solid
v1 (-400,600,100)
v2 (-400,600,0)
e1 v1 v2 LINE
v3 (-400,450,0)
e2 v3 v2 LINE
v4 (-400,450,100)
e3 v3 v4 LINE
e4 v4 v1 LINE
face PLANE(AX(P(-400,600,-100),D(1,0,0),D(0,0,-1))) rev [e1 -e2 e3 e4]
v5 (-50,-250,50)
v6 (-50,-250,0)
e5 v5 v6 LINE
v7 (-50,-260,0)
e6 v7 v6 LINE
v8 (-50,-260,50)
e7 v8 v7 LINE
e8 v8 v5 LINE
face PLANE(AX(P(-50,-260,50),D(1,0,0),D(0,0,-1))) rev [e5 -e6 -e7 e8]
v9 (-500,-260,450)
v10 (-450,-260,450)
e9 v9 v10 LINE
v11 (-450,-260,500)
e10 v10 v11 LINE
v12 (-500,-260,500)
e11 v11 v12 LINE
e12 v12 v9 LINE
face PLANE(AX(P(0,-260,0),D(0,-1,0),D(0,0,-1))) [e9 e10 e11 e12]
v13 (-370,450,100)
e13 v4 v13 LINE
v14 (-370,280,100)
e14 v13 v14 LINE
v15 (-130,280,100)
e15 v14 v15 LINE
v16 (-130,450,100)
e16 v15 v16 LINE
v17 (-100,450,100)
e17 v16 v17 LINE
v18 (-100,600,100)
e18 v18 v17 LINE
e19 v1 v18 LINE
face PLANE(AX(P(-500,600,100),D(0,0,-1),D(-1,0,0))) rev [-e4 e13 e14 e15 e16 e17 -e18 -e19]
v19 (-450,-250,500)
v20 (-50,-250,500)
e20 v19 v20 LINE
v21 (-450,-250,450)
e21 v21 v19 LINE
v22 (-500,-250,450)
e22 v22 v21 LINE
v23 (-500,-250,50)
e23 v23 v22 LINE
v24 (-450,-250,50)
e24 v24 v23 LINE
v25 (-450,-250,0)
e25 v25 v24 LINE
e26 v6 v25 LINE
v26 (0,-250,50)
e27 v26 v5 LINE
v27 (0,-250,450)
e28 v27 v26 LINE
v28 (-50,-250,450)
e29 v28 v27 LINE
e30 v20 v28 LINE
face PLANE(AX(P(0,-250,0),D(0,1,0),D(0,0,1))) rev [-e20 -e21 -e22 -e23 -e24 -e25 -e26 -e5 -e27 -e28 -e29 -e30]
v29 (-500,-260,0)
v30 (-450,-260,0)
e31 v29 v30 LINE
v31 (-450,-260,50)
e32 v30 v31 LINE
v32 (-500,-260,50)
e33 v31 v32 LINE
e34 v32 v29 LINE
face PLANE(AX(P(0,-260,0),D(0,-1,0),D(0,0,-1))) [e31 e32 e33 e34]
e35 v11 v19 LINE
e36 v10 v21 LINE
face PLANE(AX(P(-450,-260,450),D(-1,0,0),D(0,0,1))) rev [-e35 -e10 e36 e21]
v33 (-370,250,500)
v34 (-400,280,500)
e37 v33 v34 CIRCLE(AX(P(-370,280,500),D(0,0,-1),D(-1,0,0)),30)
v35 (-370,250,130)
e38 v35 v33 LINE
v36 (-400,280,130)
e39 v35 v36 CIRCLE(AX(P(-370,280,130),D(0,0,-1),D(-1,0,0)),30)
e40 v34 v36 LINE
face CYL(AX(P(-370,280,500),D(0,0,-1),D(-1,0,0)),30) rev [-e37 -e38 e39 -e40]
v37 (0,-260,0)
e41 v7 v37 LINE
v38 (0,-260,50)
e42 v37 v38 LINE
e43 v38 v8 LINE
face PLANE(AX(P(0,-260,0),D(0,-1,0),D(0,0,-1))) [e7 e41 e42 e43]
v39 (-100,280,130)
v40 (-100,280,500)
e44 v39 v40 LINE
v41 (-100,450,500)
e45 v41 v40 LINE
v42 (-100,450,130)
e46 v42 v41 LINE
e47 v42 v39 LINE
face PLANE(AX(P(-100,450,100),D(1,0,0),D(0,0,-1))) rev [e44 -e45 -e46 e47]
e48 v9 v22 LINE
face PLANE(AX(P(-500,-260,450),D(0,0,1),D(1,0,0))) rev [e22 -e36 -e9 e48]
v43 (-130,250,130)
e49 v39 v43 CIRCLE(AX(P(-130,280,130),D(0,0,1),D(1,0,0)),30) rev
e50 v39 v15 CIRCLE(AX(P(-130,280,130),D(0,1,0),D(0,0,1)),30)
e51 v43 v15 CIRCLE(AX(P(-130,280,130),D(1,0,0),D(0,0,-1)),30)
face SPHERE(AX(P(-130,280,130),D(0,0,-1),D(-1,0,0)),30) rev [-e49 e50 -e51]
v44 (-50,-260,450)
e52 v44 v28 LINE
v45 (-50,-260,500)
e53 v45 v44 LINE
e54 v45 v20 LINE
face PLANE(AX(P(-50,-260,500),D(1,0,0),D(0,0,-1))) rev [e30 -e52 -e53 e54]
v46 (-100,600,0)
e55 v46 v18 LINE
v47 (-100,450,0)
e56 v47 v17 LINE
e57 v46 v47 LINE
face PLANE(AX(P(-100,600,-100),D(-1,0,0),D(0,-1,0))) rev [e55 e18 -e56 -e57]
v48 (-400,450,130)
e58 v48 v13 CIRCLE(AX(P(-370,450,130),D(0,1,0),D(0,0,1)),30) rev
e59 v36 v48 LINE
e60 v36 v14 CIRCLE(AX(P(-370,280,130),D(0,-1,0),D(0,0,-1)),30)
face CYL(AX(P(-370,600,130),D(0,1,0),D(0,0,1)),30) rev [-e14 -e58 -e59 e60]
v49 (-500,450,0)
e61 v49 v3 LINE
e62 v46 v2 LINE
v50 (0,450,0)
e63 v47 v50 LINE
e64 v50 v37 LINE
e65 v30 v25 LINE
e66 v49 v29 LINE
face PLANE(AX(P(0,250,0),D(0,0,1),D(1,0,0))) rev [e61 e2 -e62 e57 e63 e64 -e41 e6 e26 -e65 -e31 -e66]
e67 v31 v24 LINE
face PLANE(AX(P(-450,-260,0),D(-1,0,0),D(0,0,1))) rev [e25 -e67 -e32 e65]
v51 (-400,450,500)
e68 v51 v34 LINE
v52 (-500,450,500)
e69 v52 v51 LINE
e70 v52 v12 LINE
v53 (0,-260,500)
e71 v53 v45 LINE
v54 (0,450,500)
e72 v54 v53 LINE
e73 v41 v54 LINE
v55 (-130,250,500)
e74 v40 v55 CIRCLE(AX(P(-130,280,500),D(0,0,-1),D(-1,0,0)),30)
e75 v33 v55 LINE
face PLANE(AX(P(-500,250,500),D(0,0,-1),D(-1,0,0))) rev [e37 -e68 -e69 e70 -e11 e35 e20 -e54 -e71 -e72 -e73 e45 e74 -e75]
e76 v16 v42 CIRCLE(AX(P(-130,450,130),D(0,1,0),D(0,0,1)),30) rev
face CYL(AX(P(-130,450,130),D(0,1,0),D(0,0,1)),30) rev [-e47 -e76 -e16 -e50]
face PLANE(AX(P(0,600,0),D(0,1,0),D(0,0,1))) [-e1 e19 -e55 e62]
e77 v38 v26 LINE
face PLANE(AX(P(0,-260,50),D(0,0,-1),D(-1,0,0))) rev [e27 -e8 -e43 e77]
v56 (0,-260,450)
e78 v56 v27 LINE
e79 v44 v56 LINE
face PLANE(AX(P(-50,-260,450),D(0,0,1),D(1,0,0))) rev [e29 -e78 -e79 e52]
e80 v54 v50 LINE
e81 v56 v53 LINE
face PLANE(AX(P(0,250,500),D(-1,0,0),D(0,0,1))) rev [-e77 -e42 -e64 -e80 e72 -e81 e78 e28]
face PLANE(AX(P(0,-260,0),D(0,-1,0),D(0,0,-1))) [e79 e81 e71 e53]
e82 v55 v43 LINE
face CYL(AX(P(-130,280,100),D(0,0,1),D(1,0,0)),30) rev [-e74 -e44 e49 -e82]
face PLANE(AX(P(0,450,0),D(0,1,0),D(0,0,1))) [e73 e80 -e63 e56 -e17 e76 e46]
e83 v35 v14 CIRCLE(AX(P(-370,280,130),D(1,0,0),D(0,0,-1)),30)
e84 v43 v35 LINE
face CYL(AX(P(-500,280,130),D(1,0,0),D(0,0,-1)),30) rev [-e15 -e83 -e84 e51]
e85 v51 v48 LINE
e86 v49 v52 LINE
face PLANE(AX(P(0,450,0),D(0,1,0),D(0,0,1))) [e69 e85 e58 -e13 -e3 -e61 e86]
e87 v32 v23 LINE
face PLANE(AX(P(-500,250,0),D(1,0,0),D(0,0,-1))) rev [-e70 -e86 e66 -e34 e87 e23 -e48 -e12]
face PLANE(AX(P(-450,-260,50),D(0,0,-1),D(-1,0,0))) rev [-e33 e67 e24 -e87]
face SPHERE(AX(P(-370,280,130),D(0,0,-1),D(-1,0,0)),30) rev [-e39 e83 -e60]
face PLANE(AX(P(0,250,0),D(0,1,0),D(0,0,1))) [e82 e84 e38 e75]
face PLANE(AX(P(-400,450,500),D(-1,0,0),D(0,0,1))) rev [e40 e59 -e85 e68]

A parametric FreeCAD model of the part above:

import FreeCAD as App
import Part
import Sketcher

V = App.Vector
Q = App.Units.Quantity


def edges_at(feature, points):
    """Names of the edges that pass closest to the given points."""
    edges = feature.Shape.Edges
    near = lambda p: min(range(len(edges)), key=lambda i: edges[i].distToShape(Part.Vertex(*p))[0])
    return sorted({f"Edge{near(p) + 1}" for p in points})


def add_polygon(sketch, points):
    """Adds a closed chain of lines whose ends are joined by coincident constraints."""
    first, n = sketch.GeometryCount, len(points)
    for a, b in zip(points, points[1:] + points[:1]):
        sketch.addGeometry(Part.LineSegment(App.Vector(*a, 0), App.Vector(*b, 0)), False)
    for i in range(n):
        sketch.addConstraint(Sketcher.Constraint("Coincident", first + i, 2, first + (i + 1) % n, 1))

doc = App.newDocument("Part")
body = doc.addObject("PartDesign::Body", "Body")

sketch1 = body.newObject("Sketcher::SketchObject", "Sketch")
sketch1.AttachmentSupport = (doc.getObject("XZ_Plane"), [""])
sketch1.MapMode = "FlatFace"
add_polygon(sketch1, [(-500, 0), (-500, 500), (0, 500), (0, 0)])
sketch1.addConstraint([
    Sketcher.Constraint("Vertical", 0),
    Sketcher.Constraint("Horizontal", 1),
    Sketcher.Constraint("Vertical", 2),
    Sketcher.Constraint("Horizontal", 3),
    Sketcher.Constraint("Coincident", 2, 2, -1, 1),
    Sketcher.Constraint("Equal", 3, 0),
    Sketcher.Constraint("DistanceX", 1, 1, 1, 2, Q("500 mm")),
])
pad1 = body.newObject("PartDesign::Pad", "Pad")
pad1.Profile = sketch1
pad1.Length = 500
pad1.Midplane = True

sketch2 = body.newObject("Sketcher::SketchObject", "Sketch001")
sketch2.AttachmentSupport = (doc.getObject("XZ_Plane"), [""])
sketch2.MapMode = "FlatFace"
sketch2.AttachmentOffset = App.Placement(V(0, 0, -250), App.Rotation())
add_polygon(sketch2, [(-500, 0), (-500, 100), (0, 100), (0, 0)])
sketch2.addConstraint([
    Sketcher.Constraint("Vertical", 0),
    Sketcher.Constraint("Horizontal", 1),
    Sketcher.Constraint("Vertical", 2),
    Sketcher.Constraint("Horizontal", 3),
    Sketcher.Constraint("Coincident", 2, 2, -1, 1),
    Sketcher.Constraint("DistanceX", 1, 1, 1, 2, Q("500 mm")),
    Sketcher.Constraint("DistanceY", 0, 1, 0, 2, Q("100 mm")),
])
pad2 = body.newObject("PartDesign::Pad", "Pad001")
pad2.Profile = sketch2
pad2.Length = 350
pad2.Reversed = True

sketch3 = body.newObject("Sketcher::SketchObject", "Sketch002")
sketch3.AttachmentSupport = (doc.getObject("XZ_Plane"), [""])
sketch3.MapMode = "FlatFace"
sketch3.AttachmentOffset = App.Placement(V(0, 0, -250), App.Rotation())
add_polygon(sketch3, [(-500, 100), (-500, 500), (-400, 500), (-400, 100)])
sketch3.addConstraint([
    Sketcher.Constraint("Vertical", 0),
    Sketcher.Constraint("Horizontal", 1),
    Sketcher.Constraint("Vertical", 2),
    Sketcher.Constraint("Horizontal", 3),
    Sketcher.Constraint("DistanceX", 1, 1, 1, 2, Q("100 mm")),
    Sketcher.Constraint("DistanceY", 0, 1, 0, 2, Q("400 mm")),
    Sketcher.Constraint("DistanceX", 0, 2, -1, 1, Q("500 mm")),
    Sketcher.Constraint("DistanceY", -1, 1, 0, 2, Q("500 mm")),
])
pad3 = body.newObject("PartDesign::Pad", "Pad002")
pad3.Profile = sketch3
pad3.Length = 200
pad3.Reversed = True

sketch4 = body.newObject("Sketcher::SketchObject", "Sketch003")
sketch4.AttachmentSupport = (doc.getObject("XZ_Plane"), [""])
sketch4.MapMode = "FlatFace"
sketch4.AttachmentOffset = App.Placement(V(0, 0, -250), App.Rotation())
add_polygon(sketch4, [(-100, 100), (-100, 500), (0, 500), (0, 100)])
sketch4.addConstraint([
    Sketcher.Constraint("Vertical", 0),
    Sketcher.Constraint("Horizontal", 1),
    Sketcher.Constraint("Vertical", 2),
    Sketcher.Constraint("Horizontal", 3),
    Sketcher.Constraint("PointOnObject", 1, 2, -2),
    Sketcher.Constraint("DistanceX", 1, 1, 1, 2, Q("100 mm")),
    Sketcher.Constraint("DistanceY", 0, 1, 0, 2, Q("400 mm")),
    Sketcher.Constraint("DistanceY", -1, 1, 0, 2, Q("500 mm")),
])
pad4 = body.newObject("PartDesign::Pad", "Pad003")
pad4.Profile = sketch4
pad4.Length = 200
pad4.Reversed = True

sketch5 = body.newObject("Sketcher::SketchObject", "Sketch004")
sketch5.AttachmentSupport = (doc.getObject("XY_Plane"), [""])
sketch5.MapMode = "FlatFace"
sketch5.AttachmentOffset = App.Placement(V(0, 0, 100), App.Rotation())
add_polygon(sketch5, [(-500, 600), (-500, 450), (-400, 450), (-400, 600)])
sketch5.addConstraint([
    Sketcher.Constraint("Vertical", 0),
    Sketcher.Constraint("Horizontal", 1),
    Sketcher.Constraint("Vertical", 2),
    Sketcher.Constraint("Horizontal", 3),
    Sketcher.Constraint("DistanceX", 1, 1, 1, 2, Q("100 mm")),
    Sketcher.Constraint("DistanceY", 0, 2, 0, 1, Q("150 mm")),
    Sketcher.Constraint("DistanceX", 0, 2, -1, 1, Q("500 mm")),
    Sketcher.Constraint("DistanceY", -1, 1, 0, 2, Q("450 mm")),
])
pocket1 = body.newObject("PartDesign::Pocket", "Pocket")
pocket1.Profile = sketch5
pocket1.Length = 200

sketch6 = body.newObject("Sketcher::SketchObject", "Sketch005")
sketch6.AttachmentSupport = (doc.getObject("XY_Plane"), [""])
sketch6.MapMode = "FlatFace"
sketch6.AttachmentOffset = App.Placement(V(0, 0, 100), App.Rotation())
add_polygon(sketch6, [(-100, 600), (-100, 450), (0, 450), (0, 600)])
sketch6.addConstraint([
    Sketcher.Constraint("Vertical", 0),
    Sketcher.Constraint("Horizontal", 1),
    Sketcher.Constraint("Vertical", 2),
    Sketcher.Constraint("Horizontal", 3),
    Sketcher.Constraint("PointOnObject", 1, 2, -2),
    Sketcher.Constraint("DistanceX", 1, 1, 1, 2, Q("100 mm")),
    Sketcher.Constraint("DistanceY", 0, 2, 0, 1, Q("150 mm")),
    Sketcher.Constraint("DistanceY", -1, 1, 0, 2, Q("450 mm")),
])
pocket2 = body.newObject("PartDesign::Pocket", "Pocket001")
pocket2.Profile = sketch6
pocket2.Length = 200
doc.recompute()

fillet = body.newObject("PartDesign::Fillet", "Fillet")
fillet.Base = (pocket2, edges_at(pocket2, [(-400, 250, 300)]))
fillet.Radius = 30
doc.recompute()

fillet2 = body.newObject("PartDesign::Fillet", "Fillet001")
fillet2.Base = (fillet, edges_at(fillet, [(-100, 250, 300)]))
fillet2.Radius = 30
doc.recompute()

fillet3 = body.newObject("PartDesign::Fillet", "Fillet002")
fillet3.Base = (fillet2, edges_at(fillet2, [
    (-108.787, 258.787, 100),
    (-400, 365, 100),
    (-100, 365, 100),
    (-250, 250, 100),
    (-391.213, 258.787, 100),
]))
fillet3.Radius = 30

sketch7 = body.newObject("Sketcher::SketchObject", "Sketch006")
sketch7.AttachmentSupport = (doc.getObject("XZ_Plane"), [""])
sketch7.MapMode = "FlatFace"
sketch7.AttachmentOffset = App.Placement(V(0, 0, 250), App.Rotation())
add_polygon(sketch7, [(-500, 500), (-500, 450), (-450, 450), (-450, 500)])
add_polygon(sketch7, [(-500, 50), (-500, 0), (-450, 0), (-450, 50)])
add_polygon(sketch7, [(-50, 50), (-50, 0), (0, 0), (0, 50)])
add_polygon(sketch7, [(-50, 500), (-50, 450), (0, 450), (0, 500)])
sketch7.addConstraint([
    Sketcher.Constraint("Vertical", 0),
    Sketcher.Constraint("Horizontal", 1),
    Sketcher.Constraint("Vertical", 2),
    Sketcher.Constraint("Horizontal", 3),
    Sketcher.Constraint("Vertical", 4),
    Sketcher.Constraint("Horizontal", 5),
    Sketcher.Constraint("Vertical", 6),
    Sketcher.Constraint("Horizontal", 7),
    Sketcher.Constraint("Vertical", 8),
    Sketcher.Constraint("Horizontal", 9),
    Sketcher.Constraint("Vertical", 10),
    Sketcher.Constraint("Horizontal", 11),
    Sketcher.Constraint("Vertical", 12),
    Sketcher.Constraint("Horizontal", 13),
    Sketcher.Constraint("Vertical", 14),
    Sketcher.Constraint("Horizontal", 15),
    Sketcher.Constraint("Coincident", 9, 2, -1, 1),
    Sketcher.Constraint("PointOnObject", 4, 2, -1),
    Sketcher.Constraint("PointOnObject", 13, 2, -2),
    Sketcher.Constraint("Horizontal", 7, 2, 10, 2),
    Sketcher.Constraint("Horizontal", 1, 2, 12, 2),
    Sketcher.Constraint("Horizontal", 3, 2, 14, 2),
    Sketcher.Constraint("Vertical", 3, 2, 4, 2),
    Sketcher.Constraint("Vertical", 2, 2, 5, 2),
    Sketcher.Constraint("Vertical", 11, 2, 12, 2),
    Sketcher.Constraint("Equal", 7, 9),
    Sketcher.Constraint("Equal", 15, 0),
    Sketcher.Constraint("Equal", 2, 4),
    Sketcher.Constraint("DistanceX", 1, 1, 1, 2, Q("50 mm")),
    Sketcher.Constraint("DistanceX", 0, 2, -1, 1, Q("500 mm")),
    Sketcher.Constraint("DistanceY", -1, 1, 0, 2, Q("450 mm")),
])
pad5 = body.newObject("PartDesign::Pad", "Pad004")
pad5.Profile = sketch7
pad5.Length = 10

doc.recompute()
